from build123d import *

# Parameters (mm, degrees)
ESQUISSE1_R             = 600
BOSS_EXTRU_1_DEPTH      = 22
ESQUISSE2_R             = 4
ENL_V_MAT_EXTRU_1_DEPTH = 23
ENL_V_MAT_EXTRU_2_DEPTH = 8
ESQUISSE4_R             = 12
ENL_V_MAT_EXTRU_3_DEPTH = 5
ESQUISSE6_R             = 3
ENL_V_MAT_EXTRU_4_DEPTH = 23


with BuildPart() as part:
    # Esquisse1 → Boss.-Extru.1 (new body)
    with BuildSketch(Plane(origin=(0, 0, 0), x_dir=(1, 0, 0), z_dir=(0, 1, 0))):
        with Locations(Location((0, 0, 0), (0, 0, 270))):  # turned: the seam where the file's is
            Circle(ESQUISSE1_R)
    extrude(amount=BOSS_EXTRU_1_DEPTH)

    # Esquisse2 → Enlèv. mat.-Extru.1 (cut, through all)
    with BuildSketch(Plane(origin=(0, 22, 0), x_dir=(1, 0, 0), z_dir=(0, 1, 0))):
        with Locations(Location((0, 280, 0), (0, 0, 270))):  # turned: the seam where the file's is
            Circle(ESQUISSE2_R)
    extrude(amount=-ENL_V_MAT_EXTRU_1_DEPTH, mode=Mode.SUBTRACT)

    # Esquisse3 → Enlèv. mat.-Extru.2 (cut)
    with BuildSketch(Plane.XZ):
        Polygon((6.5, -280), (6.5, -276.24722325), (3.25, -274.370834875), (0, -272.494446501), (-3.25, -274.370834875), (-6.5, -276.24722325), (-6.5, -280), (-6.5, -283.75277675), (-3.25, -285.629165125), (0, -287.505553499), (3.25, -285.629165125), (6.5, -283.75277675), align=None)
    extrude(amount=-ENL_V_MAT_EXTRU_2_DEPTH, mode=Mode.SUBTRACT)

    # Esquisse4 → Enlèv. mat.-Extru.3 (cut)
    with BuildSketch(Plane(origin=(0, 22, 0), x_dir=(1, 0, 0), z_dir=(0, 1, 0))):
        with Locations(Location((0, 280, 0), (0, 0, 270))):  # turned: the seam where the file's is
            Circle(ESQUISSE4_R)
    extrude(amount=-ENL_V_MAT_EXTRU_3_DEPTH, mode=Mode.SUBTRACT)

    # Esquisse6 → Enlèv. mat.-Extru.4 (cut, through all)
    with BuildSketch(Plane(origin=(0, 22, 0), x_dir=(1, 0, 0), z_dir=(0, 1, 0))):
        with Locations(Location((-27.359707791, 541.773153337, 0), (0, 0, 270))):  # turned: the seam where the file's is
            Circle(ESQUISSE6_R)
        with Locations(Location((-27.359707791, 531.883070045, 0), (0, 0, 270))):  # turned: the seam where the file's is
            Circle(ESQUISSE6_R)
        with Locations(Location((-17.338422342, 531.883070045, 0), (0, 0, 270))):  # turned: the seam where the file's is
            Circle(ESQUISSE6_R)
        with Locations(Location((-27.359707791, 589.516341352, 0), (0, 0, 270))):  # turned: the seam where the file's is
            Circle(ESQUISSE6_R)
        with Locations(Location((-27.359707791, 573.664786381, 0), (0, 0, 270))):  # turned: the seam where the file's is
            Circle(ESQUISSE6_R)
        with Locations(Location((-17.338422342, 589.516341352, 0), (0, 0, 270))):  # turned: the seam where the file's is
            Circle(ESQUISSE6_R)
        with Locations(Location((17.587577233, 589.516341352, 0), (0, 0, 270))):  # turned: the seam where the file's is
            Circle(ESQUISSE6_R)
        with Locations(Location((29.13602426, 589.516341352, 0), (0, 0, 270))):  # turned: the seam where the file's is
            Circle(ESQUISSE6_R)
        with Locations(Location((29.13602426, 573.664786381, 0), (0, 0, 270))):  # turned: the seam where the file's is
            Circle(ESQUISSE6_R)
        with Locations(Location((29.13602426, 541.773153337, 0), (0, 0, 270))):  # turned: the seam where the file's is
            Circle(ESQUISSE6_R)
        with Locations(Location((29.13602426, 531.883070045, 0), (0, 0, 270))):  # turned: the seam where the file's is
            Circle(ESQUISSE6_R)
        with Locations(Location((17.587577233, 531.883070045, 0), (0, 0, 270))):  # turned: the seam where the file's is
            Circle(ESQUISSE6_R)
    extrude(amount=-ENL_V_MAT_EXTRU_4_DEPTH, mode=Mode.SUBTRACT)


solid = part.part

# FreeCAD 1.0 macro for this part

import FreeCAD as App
import Part
import Sketcher

V = App.Vector
Q = App.Units.Quantity

doc = App.newDocument("Part")
params = doc.addObject("Spreadsheet::Sheet", "Params")
for row, (alias, value) in enumerate([
    ("sketch1_diameter", "1200 mm"),
    ("pad1_length", "22 mm"),
    ("sketch2_diameter", "8 mm"),
    ("pocket2_length", "8 mm"),
    ("sketch4_diameter", "24 mm"),
    ("pocket3_length", "5 mm"),
    ("sketch5_diameter", "6 mm"),
], start=1):
    params.set(f"A{row}", alias)
    params.set(f"B{row}", "=" + value)
    params.setAlias(f"B{row}", alias)

body = doc.addObject("PartDesign::Body", "Body")

# Sketch on XZ plane
sketch1 = body.newObject("Sketcher::SketchObject", "Sketch")
sketch1.AttachmentSupport = (doc.getObject("XZ_Plane"), [""])
sketch1.MapMode = "FlatFace"
sketch1.addGeometry(Part.Circle(V(0, 0, 0), V(0, 0, 1), 600), False)
sketch1.addConstraint(Sketcher.Constraint("Coincident", 0, 3, -1, 1))
sketch1.addConstraint(Sketcher.Constraint("Diameter", 0, 1200.0))
sketch1.setExpression("Constraints[1]", "Params.sketch1_diameter")
pad1 = body.newObject("PartDesign::Pad", "Pad")
pad1.Profile = sketch1
pad1.setExpression("Length", "Params.pad1_length")
pad1.Reversed = True

# Sketch on XZ plane
sketch2 = body.newObject("Sketcher::SketchObject", "Sketch001")
sketch2.AttachmentSupport = (doc.getObject("XZ_Plane"), [""])
sketch2.MapMode = "FlatFace"
sketch2.AttachmentOffset = App.Placement(V(0, 0, -22), App.Rotation())
sketch2.addGeometry(Part.Circle(V(0, -280, 0), V(0, 0, 1), 4), False)
sketch2.addConstraint(Sketcher.Constraint("PointOnObject", 0, 3, -2))
sketch2.addConstraint(Sketcher.Constraint("Diameter", 0, 8.0))
sketch2.addConstraint(Sketcher.Constraint("DistanceY", 0, 3, -1, 1, 280.0))
sketch2.setExpression("Constraints[1]", "Params.sketch2_diameter")
pocket1 = body.newObject("PartDesign::Pocket", "Pocket")
pocket1.Profile = sketch2
pocket1.Type = "ThroughAll"
pocket1.Reversed = True

# Sketch on XZ plane
sketch3 = body.newObject("Sketcher::SketchObject", "Sketch002")
sketch3.AttachmentSupport = (doc.getObject("XZ_Plane"), [""])
sketch3.MapMode = "FlatFace"
sketch3.addGeometry(Part.LineSegment(V(6.5, -276.2, 0), V(3.2, -274.4, 0)), False)
sketch3.addGeometry(Part.LineSegment(V(3.2, -274.4, 0), V(0, -272.5, 0)), False)
sketch3.addGeometry(Part.LineSegment(V(0, -272.5, 0), V(-3.2, -274.4, 0)), False)
sketch3.addGeometry(Part.LineSegment(V(-3.2, -274.4, 0), V(-6.5, -276.2, 0)), False)
sketch3.addGeometry(Part.LineSegment(V(-6.5, -276.2, 0), V(-6.5, -283.8, 0)), False)
sketch3.addGeometry(Part.LineSegment(V(-6.5, -283.8, 0), V(-3.2, -285.6, 0)), False)
sketch3.addGeometry(Part.LineSegment(V(-3.2, -285.6, 0), V(0, -287.5, 0)), False)
sketch3.addGeometry(Part.LineSegment(V(0, -287.5, 0), V(3.2, -285.6, 0)), False)
sketch3.addGeometry(Part.LineSegment(V(3.2, -285.6, 0), V(6.5, -283.8, 0)), False)
sketch3.addGeometry(Part.LineSegment(V(6.5, -283.8, 0), V(6.5, -276.2, 0)), False)
sketch3.addConstraint(Sketcher.Constraint("Coincident", 0, 2, 1, 1))
sketch3.addConstraint(Sketcher.Constraint("Coincident", 1, 2, 2, 1))
sketch3.addConstraint(Sketcher.Constraint("Coincident", 2, 2, 3, 1))
sketch3.addConstraint(Sketcher.Constraint("Coincident", 3, 2, 4, 1))
sketch3.addConstraint(Sketcher.Constraint("Coincident", 4, 2, 5, 1))
sketch3.addConstraint(Sketcher.Constraint("Coincident", 5, 2, 6, 1))
sketch3.addConstraint(Sketcher.Constraint("Coincident", 6, 2, 7, 1))
sketch3.addConstraint(Sketcher.Constraint("Coincident", 7, 2, 8, 1))
sketch3.addConstraint(Sketcher.Constraint("Coincident", 8, 2, 9, 1))
sketch3.addConstraint(Sketcher.Constraint("Coincident", 9, 2, 0, 1))
sketch3.addConstraint(Sketcher.Constraint("Vertical", 4))
sketch3.addConstraint(Sketcher.Constraint("Vertical", 9))
sketch3.addConstraint(Sketcher.Constraint("Symmetric", 0, 2, 2, 2, -2))
sketch3.addConstraint(Sketcher.Constraint("Symmetric", 5, 2, 7, 2, -2))
sketch3.addConstraint(Sketcher.Constraint("Symmetric", 4, 2, 8, 2, -2))
sketch3.addConstraint(Sketcher.Constraint("PointOnObject", 1, 2, -2))
sketch3.addConstraint(Sketcher.Constraint("PointOnObject", 6, 2, -2))
sketch3.addConstraint(Sketcher.Constraint("Parallel", 0, 1))
sketch3.addConstraint(Sketcher.Constraint("Parallel", 2, 3))
sketch3.addConstraint(Sketcher.Constraint("Parallel", 1, 5))
sketch3.addConstraint(Sketcher.Constraint("Parallel", 5, 6))
sketch3.addConstraint(Sketcher.Constraint("Vertical", 2, 2, 5, 2))
sketch3.addConstraint(Sketcher.Constraint("Equal", 0, 1))
sketch3.addConstraint(Sketcher.Constraint("Angle", 0, Q("150 deg")))
sketch3.addConstraint(Sketcher.Constraint("DistanceX", 3, 2, -1, 1, 6.5))
sketch3.addConstraint(Sketcher.Constraint("DistanceY", 4, 2, 4, 1, 7.505554))
sketch3.addConstraint(Sketcher.Constraint("DistanceY", 0, 2, -1, 1, 274.370835))
pocket2 = body.newObject("PartDesign::Pocket", "Pocket001")
pocket2.Profile = sketch3
pocket2.setExpression("Length", "Params.pocket2_length")

# Sketch on XZ plane
sketch4 = body.newObject("Sketcher::SketchObject", "Sketch003")
sketch4.AttachmentSupport = (doc.getObject("XZ_Plane"), [""])
sketch4.MapMode = "FlatFace"
sketch4.AttachmentOffset = App.Placement(V(0, 0, -22), App.Rotation())
sketch4.addGeometry(Part.Circle(V(0, -280, 0), V(0, 0, 1), 12), False)
sketch4.addConstraint(Sketcher.Constraint("PointOnObject", 0, 3, -2))
sketch4.addConstraint(Sketcher.Constraint("Diameter", 0, 24.0))
sketch4.addConstraint(Sketcher.Constraint("DistanceY", 0, 3, -1, 1, 280.0))
sketch4.setExpression("Constraints[1]", "Params.sketch4_diameter")
pocket3 = body.newObject("PartDesign::Pocket", "Pocket002")
pocket3.Profile = sketch4
pocket3.setExpression("Length", "Params.pocket3_length")
pocket3.Reversed = True

# Sketch on XZ plane
sketch5 = body.newObject("Sketcher::SketchObject", "Sketch004")
sketch5.AttachmentSupport = (doc.getObject("XZ_Plane"), [""])
sketch5.MapMode = "FlatFace"
sketch5.AttachmentOffset = App.Placement(V(0, 0, -22), App.Rotation())
sketch5.addGeometry(Part.Circle(V(-27.4, -541.8, 0), V(0, 0, 1), 3), False)
sketch5.addGeometry(Part.Circle(V(-27.4, -531.9, 0), V(0, 0, 1), 3), False)
sketch5.addGeometry(Part.Circle(V(-17.3, -531.9, 0), V(0, 0, 1), 3), False)
sketch5.addGeometry(Part.Circle(V(-27.4, -589.5, 0), V(0, 0, 1), 3), False)
sketch5.addGeometry(Part.Circle(V(-27.4, -573.7, 0), V(0, 0, 1), 3), False)
sketch5.addGeometry(Part.Circle(V(-17.3, -589.5, 0), V(0, 0, 1), 3), False)
sketch5.addGeometry(Part.Circle(V(17.6, -589.5, 0), V(0, 0, 1), 3), False)
sketch5.addGeometry(Part.Circle(V(29.1, -589.5, 0), V(0, 0, 1), 3), False)
sketch5.addGeometry(Part.Circle(V(29.1, -573.7, 0), V(0, 0, 1), 3), False)
sketch5.addGeometry(Part.Circle(V(29.1, -541.8, 0), V(0, 0, 1), 3), False)
sketch5.addGeometry(Part.Circle(V(29.1, -531.9, 0), V(0, 0, 1), 3), False)
sketch5.addGeometry(Part.Circle(V(17.6, -531.9, 0), V(0, 0, 1), 3), False)
sketch5.addConstraint(Sketcher.Constraint("Equal", 0, 1))
sketch5.addConstraint(Sketcher.Constraint("Equal", 1, 2))
sketch5.addConstraint(Sketcher.Constraint("Equal", 2, 3))
sketch5.addConstraint(Sketcher.Constraint("Equal", 3, 4))
sketch5.addConstraint(Sketcher.Constraint("Equal", 4, 5))
sketch5.addConstraint(Sketcher.Constraint("Equal", 5, 6))
sketch5.addConstraint(Sketcher.Constraint("Equal", 6, 7))
sketch5.addConstraint(Sketcher.Constraint("Equal", 7, 8))
sketch5.addConstraint(Sketcher.Constraint("Equal", 8, 9))
sketch5.addConstraint(Sketcher.Constraint("Equal", 9, 10))
sketch5.addConstraint(Sketcher.Constraint("Equal", 10, 11))
sketch5.addConstraint(Sketcher.Constraint("Horizontal", 1, 3, 2, 3))
sketch5.addConstraint(Sketcher.Constraint("Horizontal", 3, 3, 5, 3))
sketch5.addConstraint(Sketcher.Constraint("Horizontal", 5, 3, 6, 3))
sketch5.addConstraint(Sketcher.Constraint("Horizontal", 6, 3, 7, 3))
sketch5.addConstraint(Sketcher.Constraint("Horizontal", 4, 3, 8, 3))
sketch5.addConstraint(Sketcher.Constraint("Horizontal", 0, 3, 9, 3))
sketch5.addConstraint(Sketcher.Constraint("Horizontal", 2, 3, 10, 3))
sketch5.addConstraint(Sketcher.Constraint("Horizontal", 10, 3, 11, 3))
sketch5.addConstraint(Sketcher.Constraint("Vertical", 0, 3, 1, 3))
sketch5.addConstraint(Sketcher.Constraint("Vertical", 1, 3, 3, 3))
sketch5.addConstraint(Sketcher.Constraint("Vertical", 3, 3, 4, 3))
sketch5.addConstraint(Sketcher.Constraint("Vertical", 2, 3, 5, 3))
sketch5.addConstraint(Sketcher.Constraint("Vertical", 7, 3, 8, 3))
sketch5.addConstraint(Sketcher.Constraint("Vertical", 8, 3, 9, 3))
sketch5.addConstraint(Sketcher.Constraint("Vertical", 9, 3, 10, 3))
sketch5.addConstraint(Sketcher.Constraint("Vertical", 6, 3, 11, 3))
sketch5.addConstraint(Sketcher.Constraint("Diameter", 0, 6.0))
sketch5.addConstraint(Sketcher.Constraint("DistanceX", 5, 3, 6, 3, 34.926))
sketch5.addConstraint(Sketcher.Constraint("DistanceY", 1, 3, -1, 1, 531.88307))
sketch5.addConstraint(Sketcher.Constraint("DistanceY", 3, 3, -1, 1, 589.516341))
sketch5.addConstraint(Sketcher.Constraint("DistanceY", 3, 3, 0, 3, 47.743188))
sketch5.addConstraint(Sketcher.Constraint("DistanceX", 0, 3, -1, 1, 27.359708))
sketch5.addConstraint(Sketcher.Constraint("DistanceX", 2, 3, -1, 1, 17.338422))
sketch5.addConstraint(Sketcher.Constraint("DistanceY", 4, 3, -1, 1, 573.664786))
sketch5.addConstraint(Sketcher.Constraint("DistanceX", -1, 1, 7, 3, 29.136024))
sketch5.setExpression("Constraints[27]", "Params.sketch5_diameter")
pocket4 = body.newObject("PartDesign::Pocket", "Pocket003")
pocket4.Profile = sketch5
pocket4.Type = "ThroughAll"
pocket4.Reversed = True

doc.recompute()
